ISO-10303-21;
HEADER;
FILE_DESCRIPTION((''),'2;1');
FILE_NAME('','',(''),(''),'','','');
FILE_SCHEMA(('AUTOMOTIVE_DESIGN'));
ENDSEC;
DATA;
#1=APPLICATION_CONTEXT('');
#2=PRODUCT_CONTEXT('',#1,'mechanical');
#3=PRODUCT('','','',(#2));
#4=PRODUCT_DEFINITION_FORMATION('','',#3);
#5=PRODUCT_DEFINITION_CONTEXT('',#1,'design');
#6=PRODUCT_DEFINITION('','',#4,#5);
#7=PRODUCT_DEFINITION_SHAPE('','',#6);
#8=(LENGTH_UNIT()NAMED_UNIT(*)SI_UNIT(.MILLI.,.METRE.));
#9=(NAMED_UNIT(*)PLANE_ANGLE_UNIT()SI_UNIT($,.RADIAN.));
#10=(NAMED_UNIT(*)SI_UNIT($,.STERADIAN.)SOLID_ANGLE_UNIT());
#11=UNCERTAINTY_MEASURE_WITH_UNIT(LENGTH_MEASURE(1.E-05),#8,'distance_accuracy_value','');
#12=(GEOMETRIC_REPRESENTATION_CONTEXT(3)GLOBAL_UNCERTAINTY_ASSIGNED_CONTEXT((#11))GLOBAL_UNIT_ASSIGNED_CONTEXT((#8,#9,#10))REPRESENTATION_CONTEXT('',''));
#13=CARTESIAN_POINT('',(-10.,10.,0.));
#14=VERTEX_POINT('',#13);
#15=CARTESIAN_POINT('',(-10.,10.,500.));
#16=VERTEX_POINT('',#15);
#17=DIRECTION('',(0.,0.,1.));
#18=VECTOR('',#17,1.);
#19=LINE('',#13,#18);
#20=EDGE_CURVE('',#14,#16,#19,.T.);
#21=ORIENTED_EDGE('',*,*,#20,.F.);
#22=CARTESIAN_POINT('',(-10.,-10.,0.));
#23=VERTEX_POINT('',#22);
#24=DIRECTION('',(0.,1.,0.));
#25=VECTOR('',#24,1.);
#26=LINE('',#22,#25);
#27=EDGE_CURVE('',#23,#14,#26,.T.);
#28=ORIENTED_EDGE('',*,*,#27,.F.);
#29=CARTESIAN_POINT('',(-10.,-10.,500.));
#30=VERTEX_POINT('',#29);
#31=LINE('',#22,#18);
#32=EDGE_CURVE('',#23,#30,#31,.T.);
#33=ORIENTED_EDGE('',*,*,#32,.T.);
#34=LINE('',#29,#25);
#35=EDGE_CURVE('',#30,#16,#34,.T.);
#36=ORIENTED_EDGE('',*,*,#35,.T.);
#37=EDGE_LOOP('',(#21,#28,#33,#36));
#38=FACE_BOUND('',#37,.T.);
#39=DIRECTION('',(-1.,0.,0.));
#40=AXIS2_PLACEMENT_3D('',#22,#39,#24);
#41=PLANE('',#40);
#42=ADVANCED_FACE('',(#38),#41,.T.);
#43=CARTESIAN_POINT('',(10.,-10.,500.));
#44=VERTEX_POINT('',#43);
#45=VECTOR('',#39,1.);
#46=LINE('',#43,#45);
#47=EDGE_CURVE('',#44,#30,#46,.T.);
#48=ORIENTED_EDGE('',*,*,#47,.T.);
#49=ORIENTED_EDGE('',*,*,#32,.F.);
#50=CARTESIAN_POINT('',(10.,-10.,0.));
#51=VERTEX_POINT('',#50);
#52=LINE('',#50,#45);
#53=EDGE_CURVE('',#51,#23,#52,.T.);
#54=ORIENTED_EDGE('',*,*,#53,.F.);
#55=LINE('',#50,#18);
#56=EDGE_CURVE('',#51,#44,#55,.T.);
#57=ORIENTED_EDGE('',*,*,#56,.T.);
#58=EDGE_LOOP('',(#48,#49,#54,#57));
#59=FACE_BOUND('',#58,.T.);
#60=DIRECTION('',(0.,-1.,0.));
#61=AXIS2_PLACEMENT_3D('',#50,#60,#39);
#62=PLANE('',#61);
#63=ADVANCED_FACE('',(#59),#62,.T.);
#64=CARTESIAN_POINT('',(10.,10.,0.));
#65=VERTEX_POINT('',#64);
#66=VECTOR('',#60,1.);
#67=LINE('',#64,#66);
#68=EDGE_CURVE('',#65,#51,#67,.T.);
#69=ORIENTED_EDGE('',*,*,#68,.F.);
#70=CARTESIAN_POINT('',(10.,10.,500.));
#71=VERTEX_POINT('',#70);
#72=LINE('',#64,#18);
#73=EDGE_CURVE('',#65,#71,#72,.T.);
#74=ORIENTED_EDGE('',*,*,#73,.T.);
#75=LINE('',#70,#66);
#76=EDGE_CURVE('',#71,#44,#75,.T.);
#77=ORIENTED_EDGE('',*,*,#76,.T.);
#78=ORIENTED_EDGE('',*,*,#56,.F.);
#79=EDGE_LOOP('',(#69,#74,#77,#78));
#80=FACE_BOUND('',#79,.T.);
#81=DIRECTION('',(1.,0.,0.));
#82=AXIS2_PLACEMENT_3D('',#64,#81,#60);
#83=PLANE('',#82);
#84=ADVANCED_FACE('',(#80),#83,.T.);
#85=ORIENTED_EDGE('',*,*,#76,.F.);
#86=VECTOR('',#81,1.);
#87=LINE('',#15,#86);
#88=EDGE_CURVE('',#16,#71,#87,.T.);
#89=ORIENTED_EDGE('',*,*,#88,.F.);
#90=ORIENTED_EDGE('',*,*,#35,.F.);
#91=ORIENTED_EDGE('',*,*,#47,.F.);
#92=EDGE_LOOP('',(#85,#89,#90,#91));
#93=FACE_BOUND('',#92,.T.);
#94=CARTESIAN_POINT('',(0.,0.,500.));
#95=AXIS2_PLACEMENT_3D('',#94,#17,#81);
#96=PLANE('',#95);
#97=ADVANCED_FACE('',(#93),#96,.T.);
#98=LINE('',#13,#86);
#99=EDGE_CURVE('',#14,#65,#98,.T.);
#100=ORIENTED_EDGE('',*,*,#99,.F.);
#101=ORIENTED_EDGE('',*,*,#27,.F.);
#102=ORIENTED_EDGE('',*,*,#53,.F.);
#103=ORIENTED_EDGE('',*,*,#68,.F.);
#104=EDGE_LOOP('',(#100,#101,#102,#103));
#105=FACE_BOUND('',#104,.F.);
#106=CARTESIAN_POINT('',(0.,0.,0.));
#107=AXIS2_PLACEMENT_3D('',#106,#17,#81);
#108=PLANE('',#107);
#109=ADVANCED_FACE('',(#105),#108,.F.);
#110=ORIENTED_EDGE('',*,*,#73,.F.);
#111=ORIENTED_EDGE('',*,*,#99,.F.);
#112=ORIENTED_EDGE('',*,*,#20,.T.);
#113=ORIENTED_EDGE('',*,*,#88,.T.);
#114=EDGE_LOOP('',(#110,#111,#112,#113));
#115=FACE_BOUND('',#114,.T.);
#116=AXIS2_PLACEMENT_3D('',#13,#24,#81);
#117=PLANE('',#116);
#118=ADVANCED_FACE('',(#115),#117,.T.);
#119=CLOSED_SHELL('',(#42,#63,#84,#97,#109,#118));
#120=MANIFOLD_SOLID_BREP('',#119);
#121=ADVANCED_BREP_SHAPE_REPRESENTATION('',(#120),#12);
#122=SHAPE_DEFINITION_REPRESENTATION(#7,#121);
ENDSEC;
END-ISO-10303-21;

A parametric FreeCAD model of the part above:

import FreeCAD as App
import Part
import Sketcher

V = App.Vector

doc = App.newDocument("Part")
body = doc.addObject("PartDesign::Body", "Body")

# Sketch on XY plane
sketch1 = body.newObject("Sketcher::SketchObject", "Sketch")
sketch1.AttachmentSupport = (doc.getObject("XY_Plane"), [""])
sketch1.MapMode = "FlatFace"
sketch1.addGeometry([
    Part.LineSegment(V(-10, -10, 0), V(10, -10, 0)),
    Part.LineSegment(V(10, -10, 0), V(10, 10, 0)),
    Part.LineSegment(V(10, 10, 0), V(-10, 10, 0)),
    Part.LineSegment(V(-10, 10, 0), V(-10, -10, 0)),
], False)
sketch1.addConstraint([
    Sketcher.Constraint("Coincident", 0, 2, 1, 1),
    Sketcher.Constraint("Coincident", 1, 2, 2, 1),
    Sketcher.Constraint("Coincident", 2, 2, 3, 1),
    Sketcher.Constraint("Coincident", 3, 2, 0, 1),
    Sketcher.Constraint("Horizontal", 0),
    Sketcher.Constraint("Vertical", 1),
    Sketcher.Constraint("Horizontal", 2),
    Sketcher.Constraint("Vertical", 3),
    Sketcher.Constraint("Symmetric", 0, 2, 2, 2, -1, 1),
    Sketcher.Constraint("Equal", 2, 1),
    Sketcher.Constraint("DistanceX", 0, 1, 0, 2, 20.0),
])
pad1 = body.newObject("PartDesign::Pad", "Pad")
pad1.Profile = sketch1
pad1.Length = 500

doc.recompute()
